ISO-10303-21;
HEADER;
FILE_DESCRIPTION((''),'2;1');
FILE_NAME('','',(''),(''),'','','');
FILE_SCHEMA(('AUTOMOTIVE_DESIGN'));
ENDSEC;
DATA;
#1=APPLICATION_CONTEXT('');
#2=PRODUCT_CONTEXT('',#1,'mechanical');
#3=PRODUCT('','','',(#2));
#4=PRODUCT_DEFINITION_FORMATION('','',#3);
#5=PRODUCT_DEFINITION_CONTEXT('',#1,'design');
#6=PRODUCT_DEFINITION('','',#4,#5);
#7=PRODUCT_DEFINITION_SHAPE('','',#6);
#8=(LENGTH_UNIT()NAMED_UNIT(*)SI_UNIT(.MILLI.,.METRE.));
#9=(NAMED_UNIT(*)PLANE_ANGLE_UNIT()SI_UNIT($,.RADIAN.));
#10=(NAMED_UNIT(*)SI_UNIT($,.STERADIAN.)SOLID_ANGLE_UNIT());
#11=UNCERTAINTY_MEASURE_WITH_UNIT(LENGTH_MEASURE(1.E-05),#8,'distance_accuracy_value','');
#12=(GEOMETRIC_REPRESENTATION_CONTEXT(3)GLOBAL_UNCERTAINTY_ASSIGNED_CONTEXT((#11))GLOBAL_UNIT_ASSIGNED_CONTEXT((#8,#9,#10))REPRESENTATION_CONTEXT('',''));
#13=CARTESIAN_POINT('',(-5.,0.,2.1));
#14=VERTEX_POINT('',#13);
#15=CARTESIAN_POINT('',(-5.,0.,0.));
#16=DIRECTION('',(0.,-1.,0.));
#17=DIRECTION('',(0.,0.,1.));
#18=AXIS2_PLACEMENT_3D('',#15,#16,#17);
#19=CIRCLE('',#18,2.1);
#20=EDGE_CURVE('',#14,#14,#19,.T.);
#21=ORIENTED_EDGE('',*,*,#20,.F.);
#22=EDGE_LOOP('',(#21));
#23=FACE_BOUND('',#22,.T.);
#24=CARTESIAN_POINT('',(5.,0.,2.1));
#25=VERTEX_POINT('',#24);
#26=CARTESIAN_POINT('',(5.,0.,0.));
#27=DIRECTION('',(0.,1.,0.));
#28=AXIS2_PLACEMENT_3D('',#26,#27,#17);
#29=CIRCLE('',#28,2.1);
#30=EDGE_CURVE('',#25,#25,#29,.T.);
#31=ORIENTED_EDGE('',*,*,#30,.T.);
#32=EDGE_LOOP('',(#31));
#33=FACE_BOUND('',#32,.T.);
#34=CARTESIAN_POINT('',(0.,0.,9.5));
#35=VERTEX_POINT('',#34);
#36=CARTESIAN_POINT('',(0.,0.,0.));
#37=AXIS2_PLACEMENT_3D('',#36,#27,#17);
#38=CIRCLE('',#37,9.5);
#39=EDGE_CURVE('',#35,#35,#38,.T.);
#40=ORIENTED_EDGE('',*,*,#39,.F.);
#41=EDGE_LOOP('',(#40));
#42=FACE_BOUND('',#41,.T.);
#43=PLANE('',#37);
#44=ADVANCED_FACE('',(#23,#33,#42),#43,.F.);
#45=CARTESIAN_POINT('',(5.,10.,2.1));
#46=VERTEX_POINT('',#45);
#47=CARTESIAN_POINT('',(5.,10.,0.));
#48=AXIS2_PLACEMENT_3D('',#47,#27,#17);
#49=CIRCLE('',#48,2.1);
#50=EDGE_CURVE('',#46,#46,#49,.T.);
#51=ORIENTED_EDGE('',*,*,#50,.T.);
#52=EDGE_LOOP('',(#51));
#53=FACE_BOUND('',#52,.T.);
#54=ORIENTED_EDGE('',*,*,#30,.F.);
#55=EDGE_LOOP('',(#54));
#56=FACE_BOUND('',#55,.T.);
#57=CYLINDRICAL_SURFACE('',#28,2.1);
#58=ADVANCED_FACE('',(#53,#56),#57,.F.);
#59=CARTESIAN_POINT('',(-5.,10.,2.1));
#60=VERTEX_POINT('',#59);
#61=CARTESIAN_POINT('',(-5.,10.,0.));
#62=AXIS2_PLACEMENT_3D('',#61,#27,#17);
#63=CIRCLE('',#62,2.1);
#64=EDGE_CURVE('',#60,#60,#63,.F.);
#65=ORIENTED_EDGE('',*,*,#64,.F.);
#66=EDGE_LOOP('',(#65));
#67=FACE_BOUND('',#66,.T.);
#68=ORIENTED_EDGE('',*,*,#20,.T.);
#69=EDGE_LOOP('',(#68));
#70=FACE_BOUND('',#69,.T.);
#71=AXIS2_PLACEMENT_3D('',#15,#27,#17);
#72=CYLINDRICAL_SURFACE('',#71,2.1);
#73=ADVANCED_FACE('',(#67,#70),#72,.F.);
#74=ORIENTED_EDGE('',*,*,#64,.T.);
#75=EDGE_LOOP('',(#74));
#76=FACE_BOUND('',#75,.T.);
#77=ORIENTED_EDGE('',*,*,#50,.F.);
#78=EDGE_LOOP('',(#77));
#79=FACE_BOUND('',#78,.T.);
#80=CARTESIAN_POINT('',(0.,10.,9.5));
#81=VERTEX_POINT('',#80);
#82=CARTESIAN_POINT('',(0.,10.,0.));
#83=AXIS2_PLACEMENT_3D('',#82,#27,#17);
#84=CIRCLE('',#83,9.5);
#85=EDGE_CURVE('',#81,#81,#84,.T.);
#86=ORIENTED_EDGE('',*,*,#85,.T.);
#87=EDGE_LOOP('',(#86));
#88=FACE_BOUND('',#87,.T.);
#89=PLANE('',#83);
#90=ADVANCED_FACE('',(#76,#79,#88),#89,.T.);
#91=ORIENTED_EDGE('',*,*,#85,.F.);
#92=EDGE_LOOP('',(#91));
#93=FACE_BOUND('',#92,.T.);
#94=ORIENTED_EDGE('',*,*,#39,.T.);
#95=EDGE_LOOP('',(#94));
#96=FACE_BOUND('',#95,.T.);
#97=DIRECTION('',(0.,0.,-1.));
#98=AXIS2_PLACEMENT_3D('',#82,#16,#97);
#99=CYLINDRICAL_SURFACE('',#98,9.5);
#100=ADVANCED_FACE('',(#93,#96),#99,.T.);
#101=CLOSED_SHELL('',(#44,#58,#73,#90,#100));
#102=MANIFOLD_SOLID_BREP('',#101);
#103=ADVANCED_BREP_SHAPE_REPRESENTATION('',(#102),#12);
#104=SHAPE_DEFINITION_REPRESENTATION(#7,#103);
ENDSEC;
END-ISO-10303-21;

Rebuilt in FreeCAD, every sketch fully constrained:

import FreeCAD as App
import Part
import Sketcher
Q = App.Units.Quantity

doc = App.newDocument("Part")
body = doc.addObject("PartDesign::Body", "Body")

# Sketch on XZ plane
sketch1 = body.newObject("Sketcher::SketchObject", "Sketch")
sketch1.AttachmentSupport = (doc.getObject("XZ_Plane"), [""])
sketch1.MapMode = "FlatFace"
sketch1.addGeometry(Part.Circle(App.Vector(0, 0, 0), App.Vector(0, 0, 1), 9.5), False)
sketch1.addConstraint(Sketcher.Constraint("Coincident", 0, 3, -1, 1))
sketch1.addConstraint(Sketcher.Constraint("Diameter", 0, Q("19 mm")))
pad1 = body.newObject("PartDesign::Pad", "Pad")
pad1.Profile = sketch1
pad1.Length = 10
pad1.Reversed = True

# Sketch on XZ plane
sketch2 = body.newObject("Sketcher::SketchObject", "Sketch001")
sketch2.AttachmentSupport = (doc.getObject("XZ_Plane"), [""])
sketch2.MapMode = "FlatFace"
sketch2.AttachmentOffset = App.Placement(App.Vector(0, 0, 1), App.Rotation())
sketch2.addGeometry(Part.Circle(App.Vector(5, 0, 0), App.Vector(0, 0, 1), 2.1), False)
sketch2.addConstraint(Sketcher.Constraint("PointOnObject", 0, 3, -1))
sketch2.addConstraint(Sketcher.Constraint("Diameter", 0, Q("4.2 mm")))
sketch2.addConstraint(Sketcher.Constraint("DistanceX", -1, 1, 0, 3, Q("5 mm")))
pocket1 = body.newObject("PartDesign::Pocket", "Pocket")
pocket1.Profile = sketch2
pocket1.Length = 12
doc.recompute()

mirrored = body.newObject("PartDesign::Mirrored", "Mirrored")
mirrored.Originals = [pocket1]
mirrored.MirrorPlane = (doc.getObject("YZ_Plane"), [""])
body.Tip = mirrored

doc.recompute()
